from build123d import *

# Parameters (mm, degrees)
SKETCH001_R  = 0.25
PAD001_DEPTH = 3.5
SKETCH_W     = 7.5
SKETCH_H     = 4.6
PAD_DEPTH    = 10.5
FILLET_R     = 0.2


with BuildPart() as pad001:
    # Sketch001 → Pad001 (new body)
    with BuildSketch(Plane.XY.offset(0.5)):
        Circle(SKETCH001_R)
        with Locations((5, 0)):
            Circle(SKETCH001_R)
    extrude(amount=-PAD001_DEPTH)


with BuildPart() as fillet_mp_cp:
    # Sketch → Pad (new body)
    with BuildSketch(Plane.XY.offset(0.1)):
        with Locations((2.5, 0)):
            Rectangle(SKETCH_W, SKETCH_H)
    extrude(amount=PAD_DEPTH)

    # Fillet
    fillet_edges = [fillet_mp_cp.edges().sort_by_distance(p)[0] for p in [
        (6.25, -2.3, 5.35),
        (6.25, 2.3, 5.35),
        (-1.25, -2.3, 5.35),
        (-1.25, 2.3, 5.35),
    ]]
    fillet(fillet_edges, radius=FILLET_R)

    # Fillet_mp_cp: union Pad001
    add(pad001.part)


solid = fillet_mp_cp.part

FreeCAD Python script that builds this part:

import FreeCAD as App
import Part
import Sketcher

V = App.Vector
Q = App.Units.Quantity


def edges_at(feature, points):
    """Names of the edges that pass closest to the given points."""
    edges = feature.Shape.Edges
    near = lambda p: min(range(len(edges)), key=lambda i: edges[i].distToShape(Part.Vertex(*p))[0])
    return sorted({f"Edge{near(p) + 1}" for p in points})


def add_polygon(sketch, points):
    """Adds a closed chain of lines whose ends are joined by coincident constraints."""
    first, n = sketch.GeometryCount, len(points)
    for a, b in zip(points, points[1:] + points[:1]):
        sketch.addGeometry(Part.LineSegment(App.Vector(*a, 0), App.Vector(*b, 0)), False)
    for i in range(n):
        sketch.addConstraint(Sketcher.Constraint("Coincident", first + i, 2, first + (i + 1) % n, 1))

doc = App.newDocument("Part")
body = doc.addObject("PartDesign::Body", "Body")
body.AllowCompound = True

# Sketch on XY plane
sketch1 = body.newObject("Sketcher::SketchObject", "Sketch")
sketch1.AttachmentSupport = (doc.getObject("XY_Plane"), [""])
sketch1.MapMode = "FlatFace"
sketch1.AttachmentOffset = App.Placement(V(0, 0, 0.5), App.Rotation())
sketch1.addGeometry(Part.Circle(V(0, 0, 0), V(0, 0, 1), 0.25), False)
sketch1.addGeometry(Part.Circle(V(5, 0, 0), V(0, 0, 1), 0.25), False)
sketch1.addConstraint(Sketcher.Constraint("Coincident", 0, 3, -1, 1))
sketch1.addConstraint(Sketcher.Constraint("Equal", 0, 1))
sketch1.addConstraint(Sketcher.Constraint("PointOnObject", 1, 3, -1))
sketch1.addConstraint(Sketcher.Constraint("Diameter", 0, Q("0.5 mm")))
sketch1.addConstraint(Sketcher.Constraint("DistanceX", -1, 1, 1, 3, Q("5 mm")))
pad1 = body.newObject("PartDesign::Pad", "Pad")
pad1.Profile = sketch1
pad1.Length = 3.5
pad1.Reversed = True
body2 = doc.addObject("PartDesign::Body", "Body001")

# Sketch on XY plane
sketch2 = body2.newObject("Sketcher::SketchObject", "Sketch001")
sketch2.AttachmentSupport = (doc.getObject("XY_Plane001"), [""])
sketch2.MapMode = "FlatFace"
sketch2.AttachmentOffset = App.Placement(V(0, 0, 0.1), App.Rotation())
add_polygon(sketch2, [(-1.2, 2.3), (-1.2, -2.3), (6.2, -2.3), (6.2, 2.3)])  # lines 0-3
sketch2.addConstraint(Sketcher.Constraint("Vertical", 0))
sketch2.addConstraint(Sketcher.Constraint("Horizontal", 1))
sketch2.addConstraint(Sketcher.Constraint("Vertical", 2))
sketch2.addConstraint(Sketcher.Constraint("Horizontal", 3))
sketch2.addConstraint(Sketcher.Constraint("DistanceX", 1, 1, 1, 2, Q("7.5 mm")))
sketch2.addConstraint(Sketcher.Constraint("DistanceY", 0, 2, 0, 1, Q("4.6 mm")))
sketch2.addConstraint(Sketcher.Constraint("DistanceY", 0, 2, -1, 1, Q("2.3 mm")))
sketch2.addConstraint(Sketcher.Constraint("DistanceX", 0, 2, -1, 1, Q("1.25 mm")))
pad2 = body2.newObject("PartDesign::Pad", "Pad001")
pad2.Profile = sketch2
pad2.Length = 10.5
doc.recompute()

fillet = body2.newObject("PartDesign::Fillet", "Fillet")
fillet.Base = (pad2, edges_at(pad2, [
    (6.25, -2.3, 5.35),
    (6.25, 2.3, 5.35),
    (-1.25, -2.3, 5.35),
    (-1.25, 2.3, 5.35),
]))
fillet.Radius = 0.2
doc.recompute()

boolean = body2.newObject("PartDesign::Boolean", "Boolean")
boolean.Type = "Fuse"
boolean.addObjects([body])

doc.recompute()
